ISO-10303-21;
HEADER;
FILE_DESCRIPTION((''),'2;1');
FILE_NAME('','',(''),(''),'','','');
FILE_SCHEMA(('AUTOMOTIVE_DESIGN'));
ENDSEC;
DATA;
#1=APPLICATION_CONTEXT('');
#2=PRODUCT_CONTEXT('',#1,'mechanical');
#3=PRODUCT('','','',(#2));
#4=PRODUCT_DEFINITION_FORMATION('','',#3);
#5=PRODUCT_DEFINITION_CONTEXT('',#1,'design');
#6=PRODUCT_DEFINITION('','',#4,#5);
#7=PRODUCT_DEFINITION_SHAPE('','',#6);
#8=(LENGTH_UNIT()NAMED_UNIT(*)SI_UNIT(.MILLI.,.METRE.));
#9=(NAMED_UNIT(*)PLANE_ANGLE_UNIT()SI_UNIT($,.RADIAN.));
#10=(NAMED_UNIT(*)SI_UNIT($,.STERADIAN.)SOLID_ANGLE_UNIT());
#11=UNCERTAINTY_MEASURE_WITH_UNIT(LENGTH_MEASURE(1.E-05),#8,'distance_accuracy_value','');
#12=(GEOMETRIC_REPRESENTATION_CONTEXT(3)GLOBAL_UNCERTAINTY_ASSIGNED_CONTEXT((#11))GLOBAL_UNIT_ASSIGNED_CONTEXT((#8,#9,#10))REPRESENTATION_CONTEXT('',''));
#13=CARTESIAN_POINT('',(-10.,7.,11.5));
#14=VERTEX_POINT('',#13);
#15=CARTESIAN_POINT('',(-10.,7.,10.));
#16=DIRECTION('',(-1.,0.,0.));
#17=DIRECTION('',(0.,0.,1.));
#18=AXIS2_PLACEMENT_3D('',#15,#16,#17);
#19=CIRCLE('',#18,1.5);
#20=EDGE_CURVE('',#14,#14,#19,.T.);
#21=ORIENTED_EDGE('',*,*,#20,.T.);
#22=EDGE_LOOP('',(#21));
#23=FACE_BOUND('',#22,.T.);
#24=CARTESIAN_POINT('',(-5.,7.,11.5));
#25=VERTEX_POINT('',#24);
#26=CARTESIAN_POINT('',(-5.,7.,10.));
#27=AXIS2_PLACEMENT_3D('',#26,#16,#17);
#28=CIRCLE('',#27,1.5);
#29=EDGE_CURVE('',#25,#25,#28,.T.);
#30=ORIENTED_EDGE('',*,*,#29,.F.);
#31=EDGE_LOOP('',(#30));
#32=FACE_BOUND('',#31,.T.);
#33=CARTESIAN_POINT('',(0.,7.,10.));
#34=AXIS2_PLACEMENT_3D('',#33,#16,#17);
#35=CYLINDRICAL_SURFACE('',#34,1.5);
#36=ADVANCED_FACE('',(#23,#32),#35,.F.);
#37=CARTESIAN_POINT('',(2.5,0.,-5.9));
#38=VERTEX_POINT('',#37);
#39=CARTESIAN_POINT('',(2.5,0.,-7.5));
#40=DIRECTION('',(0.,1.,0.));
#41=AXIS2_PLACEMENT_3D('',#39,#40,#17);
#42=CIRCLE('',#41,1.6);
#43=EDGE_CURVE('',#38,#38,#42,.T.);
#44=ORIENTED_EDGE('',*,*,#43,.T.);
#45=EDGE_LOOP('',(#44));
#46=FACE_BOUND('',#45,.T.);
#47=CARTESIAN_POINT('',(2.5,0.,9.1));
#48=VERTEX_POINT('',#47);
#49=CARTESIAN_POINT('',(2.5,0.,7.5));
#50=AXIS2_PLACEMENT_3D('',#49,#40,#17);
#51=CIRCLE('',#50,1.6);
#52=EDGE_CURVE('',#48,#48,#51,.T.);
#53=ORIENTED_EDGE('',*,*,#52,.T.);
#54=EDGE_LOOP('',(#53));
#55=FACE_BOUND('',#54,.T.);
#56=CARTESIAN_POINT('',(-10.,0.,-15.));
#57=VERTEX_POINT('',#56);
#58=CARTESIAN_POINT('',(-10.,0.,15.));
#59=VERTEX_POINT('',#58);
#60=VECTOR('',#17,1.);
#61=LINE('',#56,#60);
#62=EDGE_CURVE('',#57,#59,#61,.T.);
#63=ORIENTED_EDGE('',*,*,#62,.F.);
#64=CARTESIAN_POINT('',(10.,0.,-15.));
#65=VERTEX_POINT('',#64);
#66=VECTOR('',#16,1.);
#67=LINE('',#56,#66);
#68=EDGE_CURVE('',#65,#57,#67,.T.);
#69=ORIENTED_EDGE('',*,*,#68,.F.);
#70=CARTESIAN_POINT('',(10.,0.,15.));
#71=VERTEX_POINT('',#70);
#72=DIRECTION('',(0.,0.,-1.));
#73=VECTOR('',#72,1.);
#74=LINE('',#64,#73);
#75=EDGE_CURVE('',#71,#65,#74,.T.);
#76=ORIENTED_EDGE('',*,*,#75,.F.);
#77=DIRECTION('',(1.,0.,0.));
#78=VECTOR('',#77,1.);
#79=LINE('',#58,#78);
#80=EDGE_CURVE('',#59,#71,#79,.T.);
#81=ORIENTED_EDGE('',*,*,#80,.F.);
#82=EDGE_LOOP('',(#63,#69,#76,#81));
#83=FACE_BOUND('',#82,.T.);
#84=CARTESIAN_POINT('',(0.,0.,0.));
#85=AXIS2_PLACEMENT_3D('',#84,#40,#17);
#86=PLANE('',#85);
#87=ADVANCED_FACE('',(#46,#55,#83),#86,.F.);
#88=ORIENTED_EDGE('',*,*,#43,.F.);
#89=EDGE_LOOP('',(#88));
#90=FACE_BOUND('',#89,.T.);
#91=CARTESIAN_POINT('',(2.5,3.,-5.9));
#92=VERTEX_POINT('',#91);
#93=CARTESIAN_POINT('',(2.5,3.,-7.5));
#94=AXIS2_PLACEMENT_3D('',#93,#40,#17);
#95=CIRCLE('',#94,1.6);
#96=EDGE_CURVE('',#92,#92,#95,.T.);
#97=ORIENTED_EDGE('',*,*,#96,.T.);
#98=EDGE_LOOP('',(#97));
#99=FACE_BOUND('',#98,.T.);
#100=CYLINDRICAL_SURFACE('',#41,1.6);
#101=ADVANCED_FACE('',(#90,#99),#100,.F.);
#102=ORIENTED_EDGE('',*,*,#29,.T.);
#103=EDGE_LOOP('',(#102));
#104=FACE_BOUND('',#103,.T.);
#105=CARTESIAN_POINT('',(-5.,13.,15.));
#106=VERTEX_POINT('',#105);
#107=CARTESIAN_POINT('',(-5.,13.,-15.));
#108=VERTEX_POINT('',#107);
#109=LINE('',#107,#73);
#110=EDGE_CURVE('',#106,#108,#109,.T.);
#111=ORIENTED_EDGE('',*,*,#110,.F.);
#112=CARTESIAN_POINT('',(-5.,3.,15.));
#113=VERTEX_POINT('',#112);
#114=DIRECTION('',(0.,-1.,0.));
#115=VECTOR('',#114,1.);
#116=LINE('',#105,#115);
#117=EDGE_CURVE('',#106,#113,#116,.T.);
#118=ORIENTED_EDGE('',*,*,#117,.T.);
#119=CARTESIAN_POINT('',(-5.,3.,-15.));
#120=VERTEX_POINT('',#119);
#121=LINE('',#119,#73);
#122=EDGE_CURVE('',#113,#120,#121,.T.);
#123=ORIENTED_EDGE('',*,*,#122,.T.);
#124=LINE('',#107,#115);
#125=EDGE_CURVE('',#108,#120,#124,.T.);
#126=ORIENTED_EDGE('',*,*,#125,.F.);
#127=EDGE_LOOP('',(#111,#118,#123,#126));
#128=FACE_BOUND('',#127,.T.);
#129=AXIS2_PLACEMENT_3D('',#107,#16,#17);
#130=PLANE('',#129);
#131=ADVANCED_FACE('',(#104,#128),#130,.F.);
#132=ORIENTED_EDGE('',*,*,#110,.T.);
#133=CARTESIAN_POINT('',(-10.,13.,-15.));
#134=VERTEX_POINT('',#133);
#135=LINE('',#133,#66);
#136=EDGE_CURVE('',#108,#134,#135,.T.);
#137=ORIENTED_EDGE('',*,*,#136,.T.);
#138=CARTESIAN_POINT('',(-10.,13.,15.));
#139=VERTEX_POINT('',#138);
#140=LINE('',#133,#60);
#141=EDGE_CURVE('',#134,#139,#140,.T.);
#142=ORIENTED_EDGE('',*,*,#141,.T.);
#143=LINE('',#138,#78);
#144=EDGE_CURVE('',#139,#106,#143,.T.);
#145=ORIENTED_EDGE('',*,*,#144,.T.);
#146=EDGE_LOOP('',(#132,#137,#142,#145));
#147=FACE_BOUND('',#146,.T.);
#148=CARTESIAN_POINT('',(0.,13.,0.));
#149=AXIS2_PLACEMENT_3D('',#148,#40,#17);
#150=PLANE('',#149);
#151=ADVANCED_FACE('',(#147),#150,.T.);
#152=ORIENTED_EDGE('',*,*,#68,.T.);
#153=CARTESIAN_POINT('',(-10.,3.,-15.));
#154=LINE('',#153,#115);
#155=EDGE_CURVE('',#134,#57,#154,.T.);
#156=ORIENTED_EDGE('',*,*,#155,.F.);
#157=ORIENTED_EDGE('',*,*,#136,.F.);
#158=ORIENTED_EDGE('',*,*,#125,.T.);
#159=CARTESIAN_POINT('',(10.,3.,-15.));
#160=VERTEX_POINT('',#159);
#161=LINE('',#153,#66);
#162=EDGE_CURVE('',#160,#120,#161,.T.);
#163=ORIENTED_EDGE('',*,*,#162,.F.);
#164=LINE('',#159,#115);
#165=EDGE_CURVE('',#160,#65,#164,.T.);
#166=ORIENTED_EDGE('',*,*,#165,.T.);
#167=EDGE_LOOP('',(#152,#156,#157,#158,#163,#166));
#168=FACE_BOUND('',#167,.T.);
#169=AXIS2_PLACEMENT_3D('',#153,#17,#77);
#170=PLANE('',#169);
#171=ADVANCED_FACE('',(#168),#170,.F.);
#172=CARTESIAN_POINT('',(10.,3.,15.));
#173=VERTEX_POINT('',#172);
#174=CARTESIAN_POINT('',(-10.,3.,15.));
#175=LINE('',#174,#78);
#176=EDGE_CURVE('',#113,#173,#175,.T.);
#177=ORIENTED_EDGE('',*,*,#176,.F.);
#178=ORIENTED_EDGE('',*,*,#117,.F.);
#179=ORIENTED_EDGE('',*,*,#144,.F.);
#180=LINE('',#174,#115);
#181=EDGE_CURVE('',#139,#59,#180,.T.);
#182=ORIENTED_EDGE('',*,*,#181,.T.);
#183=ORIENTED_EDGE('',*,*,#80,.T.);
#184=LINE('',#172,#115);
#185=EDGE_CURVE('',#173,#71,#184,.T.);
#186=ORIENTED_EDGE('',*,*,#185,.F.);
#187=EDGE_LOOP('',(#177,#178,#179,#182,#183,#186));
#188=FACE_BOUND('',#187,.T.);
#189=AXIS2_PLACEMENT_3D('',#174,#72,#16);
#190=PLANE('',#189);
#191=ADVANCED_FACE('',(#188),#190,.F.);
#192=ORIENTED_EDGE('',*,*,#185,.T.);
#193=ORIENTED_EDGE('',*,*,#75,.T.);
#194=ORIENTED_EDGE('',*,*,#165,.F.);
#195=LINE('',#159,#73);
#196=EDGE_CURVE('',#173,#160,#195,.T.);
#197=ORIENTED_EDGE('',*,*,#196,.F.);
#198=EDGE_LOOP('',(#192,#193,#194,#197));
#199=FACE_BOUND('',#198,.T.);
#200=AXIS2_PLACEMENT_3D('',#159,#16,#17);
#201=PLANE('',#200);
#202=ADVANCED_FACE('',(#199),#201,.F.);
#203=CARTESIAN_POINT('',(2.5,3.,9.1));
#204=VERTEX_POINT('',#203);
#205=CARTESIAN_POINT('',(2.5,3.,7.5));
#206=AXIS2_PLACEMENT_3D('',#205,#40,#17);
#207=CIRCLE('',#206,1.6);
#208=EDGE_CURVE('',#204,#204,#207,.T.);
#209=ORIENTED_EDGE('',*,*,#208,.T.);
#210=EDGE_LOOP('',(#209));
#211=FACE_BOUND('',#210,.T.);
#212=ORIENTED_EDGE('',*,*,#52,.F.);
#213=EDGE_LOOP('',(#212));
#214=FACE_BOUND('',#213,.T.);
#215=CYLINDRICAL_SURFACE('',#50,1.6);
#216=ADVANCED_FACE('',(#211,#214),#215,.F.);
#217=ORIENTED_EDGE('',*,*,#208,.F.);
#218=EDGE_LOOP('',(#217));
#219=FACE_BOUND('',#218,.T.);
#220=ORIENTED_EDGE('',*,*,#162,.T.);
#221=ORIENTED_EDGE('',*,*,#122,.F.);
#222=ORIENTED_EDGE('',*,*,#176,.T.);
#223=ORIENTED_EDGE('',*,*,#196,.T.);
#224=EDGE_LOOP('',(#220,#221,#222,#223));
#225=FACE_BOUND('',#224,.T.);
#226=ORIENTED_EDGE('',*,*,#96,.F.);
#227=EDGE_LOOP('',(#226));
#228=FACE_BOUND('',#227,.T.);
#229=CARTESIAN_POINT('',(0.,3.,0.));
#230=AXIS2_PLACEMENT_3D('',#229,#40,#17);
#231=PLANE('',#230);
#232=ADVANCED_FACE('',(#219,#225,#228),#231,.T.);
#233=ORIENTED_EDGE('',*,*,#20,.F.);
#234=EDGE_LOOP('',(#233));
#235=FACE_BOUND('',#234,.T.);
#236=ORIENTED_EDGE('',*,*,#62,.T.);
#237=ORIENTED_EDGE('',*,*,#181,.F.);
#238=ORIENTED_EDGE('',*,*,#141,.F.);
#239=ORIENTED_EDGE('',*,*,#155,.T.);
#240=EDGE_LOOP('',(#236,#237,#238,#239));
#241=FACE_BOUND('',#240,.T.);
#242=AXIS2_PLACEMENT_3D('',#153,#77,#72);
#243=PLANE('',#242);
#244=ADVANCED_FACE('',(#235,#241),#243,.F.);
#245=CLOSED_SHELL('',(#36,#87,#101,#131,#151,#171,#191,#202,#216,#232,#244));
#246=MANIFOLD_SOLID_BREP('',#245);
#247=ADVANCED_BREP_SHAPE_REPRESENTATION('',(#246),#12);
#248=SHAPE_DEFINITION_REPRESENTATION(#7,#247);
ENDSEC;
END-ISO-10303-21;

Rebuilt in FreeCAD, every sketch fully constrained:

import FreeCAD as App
import Part
import Sketcher
from FreeCAD import Vector

doc = App.newDocument("Part")
body = doc.addObject("PartDesign::Body", "Body")

sketch1 = body.newObject("Sketcher::SketchObject", "Sketch")
sketch1.AttachmentSupport = (doc.getObject("XZ_Plane"), [""])
sketch1.MapMode = "FlatFace"
sketch1.addGeometry(Part.LineSegment(Vector(-10, -15, 0), Vector(-10, 15, 0)), False)
sketch1.addGeometry(Part.LineSegment(Vector(-10, 15, 0), Vector(10, 15, 0)), False)
sketch1.addGeometry(Part.LineSegment(Vector(10, 15, 0), Vector(10, -15, 0)), False)
sketch1.addGeometry(Part.LineSegment(Vector(10, -15, 0), Vector(-10, -15, 0)), False)
sketch1.addConstraint(Sketcher.Constraint("Coincident", 0, 2, 1, 1))
sketch1.addConstraint(Sketcher.Constraint("Coincident", 1, 2, 2, 1))
sketch1.addConstraint(Sketcher.Constraint("Coincident", 2, 2, 3, 1))
sketch1.addConstraint(Sketcher.Constraint("Coincident", 3, 2, 0, 1))
sketch1.addConstraint(Sketcher.Constraint("Vertical", 0))
sketch1.addConstraint(Sketcher.Constraint("Horizontal", 1))
sketch1.addConstraint(Sketcher.Constraint("Vertical", 2))
sketch1.addConstraint(Sketcher.Constraint("Horizontal", 3))
sketch1.addConstraint(Sketcher.Constraint("Symmetric", 0, 2, 2, 2, -1, 1))
sketch1.addConstraint(Sketcher.Constraint("DistanceX", 1, 1, 1, 2, 20.0))
sketch1.addConstraint(Sketcher.Constraint("DistanceY", 0, 1, 0, 2, 30.0))
pad1 = body.newObject("PartDesign::Pad", "Pad")
pad1.Profile = sketch1
pad1.Length = 3
pad1.Reversed = True

sketch2 = body.newObject("Sketcher::SketchObject", "Sketch001")
sketch2.AttachmentSupport = (doc.getObject("XZ_Plane"), [""])
sketch2.MapMode = "FlatFace"
sketch2.AttachmentOffset = App.Placement(Vector(0, 0, -3), App.Rotation())
sketch2.addGeometry(Part.LineSegment(Vector(-10, -15, 0), Vector(-10, 15, 0)), False)
sketch2.addGeometry(Part.LineSegment(Vector(-10, 15, 0), Vector(-5, 15, 0)), False)
sketch2.addGeometry(Part.LineSegment(Vector(-5, 15, 0), Vector(-5, -15, 0)), False)
sketch2.addGeometry(Part.LineSegment(Vector(-5, -15, 0), Vector(-10, -15, 0)), False)
sketch2.addConstraint(Sketcher.Constraint("Coincident", 0, 2, 1, 1))
sketch2.addConstraint(Sketcher.Constraint("Coincident", 1, 2, 2, 1))
sketch2.addConstraint(Sketcher.Constraint("Coincident", 2, 2, 3, 1))
sketch2.addConstraint(Sketcher.Constraint("Coincident", 3, 2, 0, 1))
sketch2.addConstraint(Sketcher.Constraint("Vertical", 0))
sketch2.addConstraint(Sketcher.Constraint("Horizontal", 1))
sketch2.addConstraint(Sketcher.Constraint("Vertical", 2))
sketch2.addConstraint(Sketcher.Constraint("Horizontal", 3))
sketch2.addConstraint(Sketcher.Constraint("DistanceX", 1, 1, 1, 2, 5.0))
sketch2.addConstraint(Sketcher.Constraint("DistanceY", 0, 1, 0, 2, 30.0))
sketch2.addConstraint(Sketcher.Constraint("DistanceX", 0, 2, -1, 1, 10.0))
sketch2.addConstraint(Sketcher.Constraint("DistanceY", -1, 1, 0, 2, 15.0))
pad2 = body.newObject("PartDesign::Pad", "Pad001")
pad2.Profile = sketch2
pad2.Length = 10
pad2.Reversed = True

sketch3 = body.newObject("Sketcher::SketchObject", "Sketch002")
sketch3.AttachmentSupport = (doc.getObject("YZ_Plane"), [""])
sketch3.MapMode = "FlatFace"
sketch3.AttachmentOffset = App.Placement(Vector(0, 0, -10), App.Rotation())
sketch3.addGeometry(Part.Circle(Vector(7, 10, 0), Vector(0, 0, 1), 1.5), False)
sketch3.addConstraint(Sketcher.Constraint("Diameter", 0, 3.0))
sketch3.addConstraint(Sketcher.Constraint("DistanceX", -1, 1, 0, 3, 7.0))
sketch3.addConstraint(Sketcher.Constraint("DistanceY", -1, 1, 0, 3, 10.0))
pocket1 = body.newObject("PartDesign::Pocket", "Pocket")
pocket1.Profile = sketch3
pocket1.Length = 10
pocket1.Reversed = True

sketch4 = body.newObject("Sketcher::SketchObject", "Sketch003")
sketch4.AttachmentSupport = (doc.getObject("XZ_Plane"), [""])
sketch4.MapMode = "FlatFace"
sketch4.AttachmentOffset = App.Placement(Vector(0, 0, -3), App.Rotation())
sketch4.addGeometry(Part.Circle(Vector(2.5, 7.5, 0), Vector(0, 0, 1), 1.6), False)
sketch4.addGeometry(Part.Circle(Vector(2.5, -7.5, 0), Vector(0, 0, 1), 1.6), False)
sketch4.addConstraint(Sketcher.Constraint("Equal", 0, 1))
sketch4.addConstraint(Sketcher.Constraint("Symmetric", 0, 3, 1, 3, -1))
sketch4.addConstraint(Sketcher.Constraint("Diameter", 0, 3.2))
sketch4.addConstraint(Sketcher.Constraint("DistanceY", 1, 3, 0, 3, 15.0))
sketch4.addConstraint(Sketcher.Constraint("DistanceX", -1, 1, 0, 3, 2.5))
pocket2 = body.newObject("PartDesign::Pocket", "Pocket001")
pocket2.Profile = sketch4
pocket2.Type = "ThroughAll"
pocket2.Reversed = True

doc.recompute()
